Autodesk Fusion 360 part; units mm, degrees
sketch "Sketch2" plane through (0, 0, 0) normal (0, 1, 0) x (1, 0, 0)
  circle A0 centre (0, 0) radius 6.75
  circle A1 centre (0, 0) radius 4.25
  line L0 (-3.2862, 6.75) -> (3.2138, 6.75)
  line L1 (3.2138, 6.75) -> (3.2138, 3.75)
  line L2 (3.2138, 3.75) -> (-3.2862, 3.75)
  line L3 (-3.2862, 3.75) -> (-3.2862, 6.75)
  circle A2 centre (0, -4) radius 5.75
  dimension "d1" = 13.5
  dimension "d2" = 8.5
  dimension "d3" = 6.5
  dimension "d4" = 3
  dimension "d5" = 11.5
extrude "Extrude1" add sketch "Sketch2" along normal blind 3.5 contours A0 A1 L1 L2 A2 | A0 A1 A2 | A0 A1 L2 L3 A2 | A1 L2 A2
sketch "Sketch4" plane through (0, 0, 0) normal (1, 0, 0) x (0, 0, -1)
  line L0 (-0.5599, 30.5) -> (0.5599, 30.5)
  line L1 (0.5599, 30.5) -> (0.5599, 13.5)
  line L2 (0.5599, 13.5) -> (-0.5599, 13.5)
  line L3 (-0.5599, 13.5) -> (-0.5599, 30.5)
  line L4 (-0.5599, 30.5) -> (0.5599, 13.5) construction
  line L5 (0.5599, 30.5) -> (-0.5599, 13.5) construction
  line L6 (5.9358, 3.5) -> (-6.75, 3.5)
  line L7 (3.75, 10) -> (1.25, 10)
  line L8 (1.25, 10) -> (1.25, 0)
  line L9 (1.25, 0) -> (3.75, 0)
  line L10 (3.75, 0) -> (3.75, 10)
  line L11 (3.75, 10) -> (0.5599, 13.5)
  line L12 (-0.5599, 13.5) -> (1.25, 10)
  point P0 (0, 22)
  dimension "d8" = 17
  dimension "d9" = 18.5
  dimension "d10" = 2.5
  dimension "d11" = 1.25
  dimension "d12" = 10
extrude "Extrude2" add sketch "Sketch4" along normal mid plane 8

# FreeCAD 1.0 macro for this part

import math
import FreeCAD as App
import Part
import Sketcher
Q = App.Units.Quantity


def add_polygon(sketch, points):
    """Adds a closed chain of lines whose ends are joined by coincident constraints."""
    first, n = sketch.GeometryCount, len(points)
    for a, b in zip(points, points[1:] + points[:1]):
        sketch.addGeometry(Part.LineSegment(App.Vector(*a, 0), App.Vector(*b, 0)), False)
    for i in range(n):
        sketch.addConstraint(Sketcher.Constraint("Coincident", first + i, 2, first + (i + 1) % n, 1))

doc = App.newDocument("Part")
body = doc.addObject("PartDesign::Body", "Body")

# Sketch on XZ plane
sketch1 = body.newObject("Sketcher::SketchObject", "Sketch")
sketch1.AttachmentSupport = (doc.getObject("XZ_Plane"), [""])
sketch1.MapMode = "FlatFace"
sketch1.addGeometry([
    Part.LineSegment(App.Vector(3.2, -5.9, 0), App.Vector(3.2, -3.8, 0)),  # 0
    Part.LineSegment(App.Vector(3.2, -3.8, 0), App.Vector(-3.3, -3.8, 0)),  # 1
    Part.LineSegment(App.Vector(-3.3, -3.8, 0), App.Vector(-3.3, -5.9, 0)),  # 2
    Part.ArcOfCircle(Part.Circle(App.Vector(0, 0, 0), App.Vector(0, 0, 1), 6.8), math.radians(-62), math.radians(241)),  # 3
    Part.ArcOfCircle(Part.Circle(App.Vector(0, 0, 0), App.Vector(0, 0, 1), 4.2), math.radians(2), math.radians(178)),  # 4
    Part.ArcOfCircle(Part.Circle(App.Vector(0, 4, 0), App.Vector(0, 0, 1), 5.8), math.radians(-138), math.radians(-42)),  # 5
], False)
sketch1.addConstraint([
    Sketcher.Constraint("Coincident", 0, 2, 1, 1),
    Sketcher.Constraint("Coincident", 1, 2, 2, 1),
    Sketcher.Constraint("Coincident", 2, 2, 3, 2),
    Sketcher.Constraint("Coincident", 3, 1, 0, 1),
    Sketcher.Constraint("Coincident", 4, 1, 5, 2),
    Sketcher.Constraint("Coincident", 5, 1, 4, 2),
    Sketcher.Constraint("Vertical", 0),
    Sketcher.Constraint("Horizontal", 1),
    Sketcher.Constraint("Vertical", 2),
    Sketcher.Constraint("Coincident", 3, 3, -1, 1),
    Sketcher.Constraint("Coincident", 4, 3, -1, 1),
    Sketcher.Constraint("PointOnObject", 5, 3, -2),
    Sketcher.Constraint("Radius", 3, Q("6.75 mm")),
    Sketcher.Constraint("Radius", 4, Q("4.25 mm")),
    Sketcher.Constraint("Radius", 5, Q("5.75 mm")),
    Sketcher.Constraint("DistanceX", 1, 2, 1, 1, Q("6.5 mm")),
    Sketcher.Constraint("DistanceY", -1, 1, 5, 3, Q("4 mm")),
    Sketcher.Constraint("DistanceY", 2, 2, 2, 1, Q("2.146 mm")),
    Sketcher.Constraint("DistanceY", 0, 2, -1, 1, Q("3.75 mm")),
])
pad1 = body.newObject("PartDesign::Pad", "Pad")
pad1.Profile = sketch1
pad1.Length = 3.5
pad1.Reversed = True

# Sketch on YZ plane
sketch2 = body.newObject("Sketcher::SketchObject", "Sketch001")
sketch2.AttachmentSupport = (doc.getObject("YZ_Plane"), [""])
sketch2.MapMode = "FlatFace"
add_polygon(sketch2, [(30.5, -0.6), (30.5, 0.6), (13.5, 0.6), (10, -1.2), (0, -1.2), (0, -3.8), (10, -3.8), (13.5, -0.6)])  # lines 0-7
sketch2.addConstraint([
    Sketcher.Constraint("Vertical", 0),
    Sketcher.Constraint("Horizontal", 1),
    Sketcher.Constraint("Horizontal", 3),
    Sketcher.Constraint("Vertical", 4),
    Sketcher.Constraint("Horizontal", 5),
    Sketcher.Constraint("Horizontal", 7),
    Sketcher.Constraint("Symmetric", 1, 2, 6, 2, -1),
    Sketcher.Constraint("PointOnObject", 3, 2, -2),
    Sketcher.Constraint("Vertical", 2, 2, 5, 2),
    Sketcher.Constraint("DistanceX", 1, 2, 1, 1, Q("17 mm")),
    Sketcher.Constraint("DistanceX", 3, 2, 3, 1, Q("10 mm")),
    Sketcher.Constraint("DistanceY", 4, 2, 4, 1, Q("2.5 mm")),
    Sketcher.Constraint("DistanceY", 2, 2, -1, 1, Q("1.25 mm")),
    Sketcher.Constraint("DistanceX", -1, 1, 0, 2, Q("30.5 mm")),
    Sketcher.Constraint("DistanceY", -1, 1, 0, 2, Q("0.56 mm")),
])
pad2 = body.newObject("PartDesign::Pad", "Pad001")
pad2.Profile = sketch2
pad2.Length = 8
pad2.Midplane = True

doc.recompute()
